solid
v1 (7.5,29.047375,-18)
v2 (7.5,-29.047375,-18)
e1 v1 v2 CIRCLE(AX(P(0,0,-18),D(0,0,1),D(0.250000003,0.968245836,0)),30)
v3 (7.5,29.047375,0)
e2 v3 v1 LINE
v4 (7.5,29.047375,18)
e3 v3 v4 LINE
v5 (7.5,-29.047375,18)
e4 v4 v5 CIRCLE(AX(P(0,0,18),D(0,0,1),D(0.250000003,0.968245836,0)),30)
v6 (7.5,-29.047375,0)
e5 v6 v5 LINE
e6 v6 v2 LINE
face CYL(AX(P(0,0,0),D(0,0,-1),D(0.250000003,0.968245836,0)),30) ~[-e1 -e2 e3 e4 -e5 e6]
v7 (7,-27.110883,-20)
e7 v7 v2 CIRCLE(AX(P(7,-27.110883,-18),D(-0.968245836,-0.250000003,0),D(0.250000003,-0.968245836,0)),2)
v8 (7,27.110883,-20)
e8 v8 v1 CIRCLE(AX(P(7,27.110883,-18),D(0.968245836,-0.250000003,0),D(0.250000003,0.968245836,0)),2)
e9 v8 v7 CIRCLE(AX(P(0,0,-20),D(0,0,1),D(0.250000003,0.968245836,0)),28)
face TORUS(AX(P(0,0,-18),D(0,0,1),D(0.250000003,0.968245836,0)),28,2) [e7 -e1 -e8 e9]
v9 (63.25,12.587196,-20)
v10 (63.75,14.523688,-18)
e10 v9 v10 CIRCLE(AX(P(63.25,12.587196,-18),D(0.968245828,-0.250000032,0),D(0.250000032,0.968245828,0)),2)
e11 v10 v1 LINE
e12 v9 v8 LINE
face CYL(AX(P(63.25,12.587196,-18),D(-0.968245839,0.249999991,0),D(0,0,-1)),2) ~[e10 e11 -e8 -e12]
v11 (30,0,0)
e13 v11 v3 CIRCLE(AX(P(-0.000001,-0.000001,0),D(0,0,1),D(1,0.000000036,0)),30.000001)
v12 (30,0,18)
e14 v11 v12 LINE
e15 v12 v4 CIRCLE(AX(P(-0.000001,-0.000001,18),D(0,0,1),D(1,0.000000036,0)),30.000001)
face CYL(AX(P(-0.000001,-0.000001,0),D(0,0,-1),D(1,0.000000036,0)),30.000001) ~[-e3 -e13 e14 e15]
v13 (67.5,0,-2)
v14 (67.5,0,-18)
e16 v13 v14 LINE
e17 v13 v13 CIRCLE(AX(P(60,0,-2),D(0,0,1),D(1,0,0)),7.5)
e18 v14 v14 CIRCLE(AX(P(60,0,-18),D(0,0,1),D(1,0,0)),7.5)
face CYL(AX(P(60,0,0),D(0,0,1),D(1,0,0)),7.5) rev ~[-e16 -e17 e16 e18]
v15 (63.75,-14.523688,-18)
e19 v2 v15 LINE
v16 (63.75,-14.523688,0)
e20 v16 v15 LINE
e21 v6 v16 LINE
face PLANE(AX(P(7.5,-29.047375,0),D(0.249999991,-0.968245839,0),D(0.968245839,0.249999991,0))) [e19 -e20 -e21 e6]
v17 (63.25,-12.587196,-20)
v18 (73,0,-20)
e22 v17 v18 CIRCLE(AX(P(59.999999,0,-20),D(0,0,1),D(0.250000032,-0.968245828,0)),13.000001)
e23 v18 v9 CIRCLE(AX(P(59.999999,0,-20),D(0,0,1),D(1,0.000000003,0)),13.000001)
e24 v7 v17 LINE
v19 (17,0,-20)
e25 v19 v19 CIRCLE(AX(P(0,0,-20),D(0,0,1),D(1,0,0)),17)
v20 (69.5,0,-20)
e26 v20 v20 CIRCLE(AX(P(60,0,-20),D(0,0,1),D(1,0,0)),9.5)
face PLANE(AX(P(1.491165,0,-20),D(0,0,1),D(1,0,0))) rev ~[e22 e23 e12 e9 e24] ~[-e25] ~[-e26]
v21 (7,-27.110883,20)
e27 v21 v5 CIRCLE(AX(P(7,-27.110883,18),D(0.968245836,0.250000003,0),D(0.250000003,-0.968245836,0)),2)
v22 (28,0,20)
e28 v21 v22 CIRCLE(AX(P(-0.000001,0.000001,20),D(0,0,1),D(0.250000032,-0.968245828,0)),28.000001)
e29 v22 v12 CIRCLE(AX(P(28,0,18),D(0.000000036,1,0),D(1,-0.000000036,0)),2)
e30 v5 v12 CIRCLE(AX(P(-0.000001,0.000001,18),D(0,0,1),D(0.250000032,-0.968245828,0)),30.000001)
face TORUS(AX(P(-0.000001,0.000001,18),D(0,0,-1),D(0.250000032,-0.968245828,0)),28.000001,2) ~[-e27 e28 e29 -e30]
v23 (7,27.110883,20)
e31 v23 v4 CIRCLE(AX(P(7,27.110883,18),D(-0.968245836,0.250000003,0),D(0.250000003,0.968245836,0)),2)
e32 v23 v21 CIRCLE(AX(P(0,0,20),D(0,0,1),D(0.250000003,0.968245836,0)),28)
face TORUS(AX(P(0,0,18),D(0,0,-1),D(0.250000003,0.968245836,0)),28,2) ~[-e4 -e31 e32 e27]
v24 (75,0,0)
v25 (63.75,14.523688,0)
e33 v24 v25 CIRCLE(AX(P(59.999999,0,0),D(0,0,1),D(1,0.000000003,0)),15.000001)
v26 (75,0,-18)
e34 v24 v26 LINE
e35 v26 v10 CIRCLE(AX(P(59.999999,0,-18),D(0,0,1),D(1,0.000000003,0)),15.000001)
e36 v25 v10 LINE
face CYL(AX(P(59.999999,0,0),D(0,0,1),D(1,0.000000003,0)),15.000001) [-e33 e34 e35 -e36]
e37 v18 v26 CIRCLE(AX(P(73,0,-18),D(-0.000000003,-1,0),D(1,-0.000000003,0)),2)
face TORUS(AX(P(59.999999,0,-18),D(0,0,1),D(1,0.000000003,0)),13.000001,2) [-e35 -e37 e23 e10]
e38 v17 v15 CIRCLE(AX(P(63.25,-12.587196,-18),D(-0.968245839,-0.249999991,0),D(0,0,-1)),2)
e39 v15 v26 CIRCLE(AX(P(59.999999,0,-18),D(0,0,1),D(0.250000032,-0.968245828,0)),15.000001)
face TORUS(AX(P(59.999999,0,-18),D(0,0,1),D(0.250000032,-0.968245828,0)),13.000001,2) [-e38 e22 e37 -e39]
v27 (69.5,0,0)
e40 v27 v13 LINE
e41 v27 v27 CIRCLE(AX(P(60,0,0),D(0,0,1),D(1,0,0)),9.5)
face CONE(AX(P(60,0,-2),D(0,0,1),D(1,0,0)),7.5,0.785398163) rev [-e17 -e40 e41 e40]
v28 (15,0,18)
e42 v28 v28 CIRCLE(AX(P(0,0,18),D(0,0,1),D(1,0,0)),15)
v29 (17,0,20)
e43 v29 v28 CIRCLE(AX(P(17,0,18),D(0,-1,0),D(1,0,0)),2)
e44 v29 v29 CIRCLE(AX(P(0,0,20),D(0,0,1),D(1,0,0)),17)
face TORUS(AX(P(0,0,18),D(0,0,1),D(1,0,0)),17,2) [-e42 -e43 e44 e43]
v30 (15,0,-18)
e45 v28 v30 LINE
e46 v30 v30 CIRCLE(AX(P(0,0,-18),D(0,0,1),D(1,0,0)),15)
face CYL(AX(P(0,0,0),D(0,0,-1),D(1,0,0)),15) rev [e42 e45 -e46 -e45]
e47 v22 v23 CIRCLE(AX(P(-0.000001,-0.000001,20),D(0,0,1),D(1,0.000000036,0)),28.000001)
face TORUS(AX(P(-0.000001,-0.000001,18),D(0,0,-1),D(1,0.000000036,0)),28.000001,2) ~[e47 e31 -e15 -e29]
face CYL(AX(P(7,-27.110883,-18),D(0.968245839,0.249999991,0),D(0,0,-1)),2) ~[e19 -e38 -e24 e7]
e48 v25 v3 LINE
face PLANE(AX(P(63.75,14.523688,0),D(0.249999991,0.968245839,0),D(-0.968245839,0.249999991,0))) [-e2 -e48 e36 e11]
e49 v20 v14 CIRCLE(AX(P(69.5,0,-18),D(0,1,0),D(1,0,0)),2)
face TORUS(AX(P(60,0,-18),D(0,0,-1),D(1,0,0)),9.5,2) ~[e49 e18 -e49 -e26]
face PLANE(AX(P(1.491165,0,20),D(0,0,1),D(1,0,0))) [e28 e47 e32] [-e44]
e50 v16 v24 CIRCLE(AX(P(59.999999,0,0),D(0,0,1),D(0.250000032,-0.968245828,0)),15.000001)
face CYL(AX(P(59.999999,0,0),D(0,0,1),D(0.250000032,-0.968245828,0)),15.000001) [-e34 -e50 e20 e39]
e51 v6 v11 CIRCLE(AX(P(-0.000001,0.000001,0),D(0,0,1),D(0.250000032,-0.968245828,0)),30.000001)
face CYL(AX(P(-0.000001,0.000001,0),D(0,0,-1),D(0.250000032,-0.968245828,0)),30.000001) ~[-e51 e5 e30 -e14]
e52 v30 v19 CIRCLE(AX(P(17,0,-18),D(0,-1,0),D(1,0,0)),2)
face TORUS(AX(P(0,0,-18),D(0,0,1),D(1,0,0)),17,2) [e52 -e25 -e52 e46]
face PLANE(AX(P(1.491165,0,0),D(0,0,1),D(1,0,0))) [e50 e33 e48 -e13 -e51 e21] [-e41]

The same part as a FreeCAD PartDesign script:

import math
import FreeCAD as App
import Part
import Sketcher

V = App.Vector
Q = App.Units.Quantity


def edges_at(feature, points):
    """Names of the edges that pass closest to the given points."""
    edges = feature.Shape.Edges
    near = lambda p: min(range(len(edges)), key=lambda i: edges[i].distToShape(Part.Vertex(*p))[0])
    return sorted({f"Edge{near(p) + 1}" for p in points})

doc = App.newDocument("Part")
params = doc.addObject("Spreadsheet::Sheet", "Params")
for row, (alias, value) in enumerate([
    ("sketch1_diameter", "30 mm"),
    ("sketch1_diameter2", "15 mm"),
    ("sketch1_radius", "30 mm"),
    ("pad1_length", "20 mm"),
    ("sketch2_diameter", "30 mm"),
    ("sketch2_radius", "30.000001 mm"),
    ("pad2_length", "20 mm"),
    ("fillet_radius", "2 mm"),
    ("chamfer_size", "2 mm"),
], start=1):
    params.set(f"A{row}", alias)
    params.set(f"B{row}", "=" + value)
    params.setAlias(f"B{row}", alias)

body = doc.addObject("PartDesign::Body", "Body")

sketch1 = body.newObject("Sketcher::SketchObject", "Sketch")
sketch1.AttachmentSupport = (doc.getObject("XY_Plane"), [""])
sketch1.MapMode = "FlatFace"
sketch1.addGeometry(Part.ArcOfCircle(Part.Circle(V(0, 0, 0), V(0, 0, 1), 30), math.radians(76), math.radians(284)), False)
sketch1.addGeometry(Part.LineSegment(V(8, -29, 0), V(64, -15, 0)), False)
sketch1.addGeometry(Part.ArcOfCircle(Part.Circle(V(60, 0, 0), V(0, 0, 1), 15), math.radians(-76), math.radians(0)), False)
sketch1.addGeometry(Part.ArcOfCircle(Part.Circle(V(60, 0, 0), V(0, 0, 1), 15), math.radians(0), math.radians(76)), False)
sketch1.addGeometry(Part.LineSegment(V(64, 15, 0), V(8, 29, 0)), False)
sketch1.addGeometry(Part.Circle(V(0, 0, 0), V(0, 0, 1), 15), False)
sketch1.addGeometry(Part.Circle(V(60, 0, 0), V(0, 0, 1), 8), False)
sketch1.addConstraint(Sketcher.Constraint("Tangent", 0, 2, 1, 1))
sketch1.addConstraint(Sketcher.Constraint("Tangent", 1, 2, 2, 1))
sketch1.addConstraint(Sketcher.Constraint("Tangent", 2, 2, 3, 1))
sketch1.addConstraint(Sketcher.Constraint("Tangent", 3, 2, 4, 1))
sketch1.addConstraint(Sketcher.Constraint("Tangent", 4, 2, 0, 1))
sketch1.addConstraint(Sketcher.Constraint("Coincident", 0, 3, -1, 1))
sketch1.addConstraint(Sketcher.Constraint("Coincident", 5, 3, -1, 1))
sketch1.addConstraint(Sketcher.Constraint("Coincident", 6, 3, 2, 3))
sketch1.addConstraint(Sketcher.Constraint("Equal", 2, 3))
sketch1.addConstraint(Sketcher.Constraint("Equal", 3, 5))
sketch1.addConstraint(Sketcher.Constraint("PointOnObject", 2, 3, -1))
sketch1.addConstraint(Sketcher.Constraint("PointOnObject", 2, 2, -1))
sketch1.addConstraint(Sketcher.Constraint("Diameter", 5, Q("30 mm")))
sketch1.addConstraint(Sketcher.Constraint("Diameter", 6, Q("15 mm")))
sketch1.addConstraint(Sketcher.Constraint("Radius", 0, Q("30 mm")))
sketch1.addConstraint(Sketcher.Constraint("DistanceX", -1, 1, 2, 3, Q("59.999999 mm")))
sketch1.setExpression("Constraints[12]", "Params.sketch1_diameter")
sketch1.setExpression("Constraints[13]", "Params.sketch1_diameter2")
sketch1.setExpression("Constraints[14]", "Params.sketch1_radius")
pad1 = body.newObject("PartDesign::Pad", "Pad")
pad1.Profile = sketch1
pad1.setExpression("Length", "Params.pad1_length")
pad1.Reversed = True

sketch2 = body.newObject("Sketcher::SketchObject", "Sketch001")
sketch2.AttachmentSupport = (doc.getObject("XY_Plane"), [""])
sketch2.MapMode = "FlatFace"
sketch2.addGeometry(Part.ArcOfCircle(Part.Circle(V(0, 0, 0), V(0, 0, 1), 30), math.radians(-76), math.radians(0)), False)
sketch2.addGeometry(Part.ArcOfCircle(Part.Circle(V(0, 0, 0), V(0, 0, 1), 30), math.radians(0), math.radians(76)), False)
sketch2.addGeometry(Part.ArcOfCircle(Part.Circle(V(0, 0, 0), V(0, 0, 1), 30), math.radians(76), math.radians(284)), False)
sketch2.addGeometry(Part.Circle(V(0, 0, 0), V(0, 0, 1), 15), False)
sketch2.addConstraint(Sketcher.Constraint("Tangent", 0, 2, 1, 1))
sketch2.addConstraint(Sketcher.Constraint("Tangent", 1, 2, 2, 1))
sketch2.addConstraint(Sketcher.Constraint("Tangent", 2, 2, 0, 1))
sketch2.addConstraint(Sketcher.Constraint("Coincident", 0, 3, -1, 1))
sketch2.addConstraint(Sketcher.Constraint("Coincident", 3, 3, -1, 1))
sketch2.addConstraint(Sketcher.Constraint("PointOnObject", 0, 2, -1))
sketch2.addConstraint(Sketcher.Constraint("Vertical", 1, 2, 2, 2))
sketch2.addConstraint(Sketcher.Constraint("Diameter", 3, Q("30 mm")))
sketch2.addConstraint(Sketcher.Constraint("Radius", 0, Q("30.000001 mm")))
sketch2.addConstraint(Sketcher.Constraint("DistanceX", -1, 1, 1, 2, Q("7.5 mm")))
sketch2.setExpression("Constraints[7]", "Params.sketch2_diameter")
sketch2.setExpression("Constraints[8]", "Params.sketch2_radius")
pad2 = body.newObject("PartDesign::Pad", "Pad001")
pad2.Profile = sketch2
pad2.setExpression("Length", "Params.pad2_length")
doc.recompute()

fillet = body.newObject("PartDesign::Fillet", "Fillet")
fillet.Base = (pad2, edges_at(pad2, [
    (-30, 0, 20),
    (-15, 0, 20),
    (-30, 0, -20),
    (35.625, -21.786, -20),
    (71.859, 9.186, -20),
    (35.625, 21.786, -20),
    (-15, 0, -20),
    (52.5, 0, -20),
]))
fillet.setExpression("Radius", "Params.fillet_radius")
doc.recompute()

chamfer = body.newObject("PartDesign::Chamfer", "Chamfer")
chamfer.Base = (fillet, edges_at(fillet, [(52.5, 0, 0)]))
chamfer.setExpression("Size", "Params.chamfer_size")

doc.recompute()
